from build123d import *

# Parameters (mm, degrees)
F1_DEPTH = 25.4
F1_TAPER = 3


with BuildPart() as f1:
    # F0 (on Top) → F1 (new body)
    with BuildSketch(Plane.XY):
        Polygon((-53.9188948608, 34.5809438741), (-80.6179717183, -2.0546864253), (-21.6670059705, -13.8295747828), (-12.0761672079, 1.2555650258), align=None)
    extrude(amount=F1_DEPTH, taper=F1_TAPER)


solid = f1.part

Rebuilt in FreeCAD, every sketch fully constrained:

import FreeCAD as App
import Part
import Sketcher

V = App.Vector
Q = App.Units.Quantity

doc = App.newDocument("Part")
params = doc.addObject("Spreadsheet::Sheet", "Params")
for row, (alias, value) in enumerate([
    ("pad1_length", "1 in"),
    ("pad1_taper", "-3 deg"),
], start=1):
    params.set(f"A{row}", alias)
    params.set(f"B{row}", "=" + value)
    params.setAlias(f"B{row}", alias)

body = doc.addObject("PartDesign::Body", "Body")

# Sketch on XY plane
sketch1 = body.newObject("Sketcher::SketchObject", "Sketch")
sketch1.AttachmentSupport = (doc.getObject("XY_Plane"), [""])
sketch1.MapMode = "FlatFace"
sketch1.addGeometry([
    Part.LineSegment(V(-54, 35, 0), V(-81, -2, 0)),
    Part.LineSegment(V(-81, -2, 0), V(-22, -14, 0)),
    Part.LineSegment(V(-22, -14, 0), V(-12, 1, 0)),
    Part.LineSegment(V(-12, 1, 0), V(-54, 35, 0)),
], False)
sketch1.addConstraint([
    Sketcher.Constraint("Coincident", 0, 2, 1, 1),
    Sketcher.Constraint("Coincident", 1, 2, 2, 1),
    Sketcher.Constraint("Coincident", 2, 2, 3, 1),
    Sketcher.Constraint("Coincident", 3, 2, 0, 1),
    Sketcher.Constraint("Distance", 0, Q("45.332219 mm")),
    Sketcher.Constraint("Distance", 2, Q("17.875839 mm")),
    Sketcher.Constraint("DistanceX", 0, 2, -1, 1, Q("80.617972 mm")),
    Sketcher.Constraint("DistanceY", 1, 2, 0, 2, Q("11.774888 mm")),
    Sketcher.Constraint("DistanceX", 1, 2, 2, 2, Q("9.590839 mm")),
    Sketcher.Constraint("DistanceY", 0, 2, 3, 2, Q("36.63563 mm")),
    Sketcher.Constraint("DistanceX", 3, 2, 1, 2, Q("32.251889 mm")),
    Sketcher.Constraint("DistanceY", 0, 2, -1, 1, Q("2.054686 mm")),
])
pad1 = body.newObject("PartDesign::Pad", "Pad")
pad1.Profile = sketch1
pad1.setExpression("Length", "Params.pad1_length")
pad1.setExpression("TaperAngle", "Params.pad1_taper")

doc.recompute()
